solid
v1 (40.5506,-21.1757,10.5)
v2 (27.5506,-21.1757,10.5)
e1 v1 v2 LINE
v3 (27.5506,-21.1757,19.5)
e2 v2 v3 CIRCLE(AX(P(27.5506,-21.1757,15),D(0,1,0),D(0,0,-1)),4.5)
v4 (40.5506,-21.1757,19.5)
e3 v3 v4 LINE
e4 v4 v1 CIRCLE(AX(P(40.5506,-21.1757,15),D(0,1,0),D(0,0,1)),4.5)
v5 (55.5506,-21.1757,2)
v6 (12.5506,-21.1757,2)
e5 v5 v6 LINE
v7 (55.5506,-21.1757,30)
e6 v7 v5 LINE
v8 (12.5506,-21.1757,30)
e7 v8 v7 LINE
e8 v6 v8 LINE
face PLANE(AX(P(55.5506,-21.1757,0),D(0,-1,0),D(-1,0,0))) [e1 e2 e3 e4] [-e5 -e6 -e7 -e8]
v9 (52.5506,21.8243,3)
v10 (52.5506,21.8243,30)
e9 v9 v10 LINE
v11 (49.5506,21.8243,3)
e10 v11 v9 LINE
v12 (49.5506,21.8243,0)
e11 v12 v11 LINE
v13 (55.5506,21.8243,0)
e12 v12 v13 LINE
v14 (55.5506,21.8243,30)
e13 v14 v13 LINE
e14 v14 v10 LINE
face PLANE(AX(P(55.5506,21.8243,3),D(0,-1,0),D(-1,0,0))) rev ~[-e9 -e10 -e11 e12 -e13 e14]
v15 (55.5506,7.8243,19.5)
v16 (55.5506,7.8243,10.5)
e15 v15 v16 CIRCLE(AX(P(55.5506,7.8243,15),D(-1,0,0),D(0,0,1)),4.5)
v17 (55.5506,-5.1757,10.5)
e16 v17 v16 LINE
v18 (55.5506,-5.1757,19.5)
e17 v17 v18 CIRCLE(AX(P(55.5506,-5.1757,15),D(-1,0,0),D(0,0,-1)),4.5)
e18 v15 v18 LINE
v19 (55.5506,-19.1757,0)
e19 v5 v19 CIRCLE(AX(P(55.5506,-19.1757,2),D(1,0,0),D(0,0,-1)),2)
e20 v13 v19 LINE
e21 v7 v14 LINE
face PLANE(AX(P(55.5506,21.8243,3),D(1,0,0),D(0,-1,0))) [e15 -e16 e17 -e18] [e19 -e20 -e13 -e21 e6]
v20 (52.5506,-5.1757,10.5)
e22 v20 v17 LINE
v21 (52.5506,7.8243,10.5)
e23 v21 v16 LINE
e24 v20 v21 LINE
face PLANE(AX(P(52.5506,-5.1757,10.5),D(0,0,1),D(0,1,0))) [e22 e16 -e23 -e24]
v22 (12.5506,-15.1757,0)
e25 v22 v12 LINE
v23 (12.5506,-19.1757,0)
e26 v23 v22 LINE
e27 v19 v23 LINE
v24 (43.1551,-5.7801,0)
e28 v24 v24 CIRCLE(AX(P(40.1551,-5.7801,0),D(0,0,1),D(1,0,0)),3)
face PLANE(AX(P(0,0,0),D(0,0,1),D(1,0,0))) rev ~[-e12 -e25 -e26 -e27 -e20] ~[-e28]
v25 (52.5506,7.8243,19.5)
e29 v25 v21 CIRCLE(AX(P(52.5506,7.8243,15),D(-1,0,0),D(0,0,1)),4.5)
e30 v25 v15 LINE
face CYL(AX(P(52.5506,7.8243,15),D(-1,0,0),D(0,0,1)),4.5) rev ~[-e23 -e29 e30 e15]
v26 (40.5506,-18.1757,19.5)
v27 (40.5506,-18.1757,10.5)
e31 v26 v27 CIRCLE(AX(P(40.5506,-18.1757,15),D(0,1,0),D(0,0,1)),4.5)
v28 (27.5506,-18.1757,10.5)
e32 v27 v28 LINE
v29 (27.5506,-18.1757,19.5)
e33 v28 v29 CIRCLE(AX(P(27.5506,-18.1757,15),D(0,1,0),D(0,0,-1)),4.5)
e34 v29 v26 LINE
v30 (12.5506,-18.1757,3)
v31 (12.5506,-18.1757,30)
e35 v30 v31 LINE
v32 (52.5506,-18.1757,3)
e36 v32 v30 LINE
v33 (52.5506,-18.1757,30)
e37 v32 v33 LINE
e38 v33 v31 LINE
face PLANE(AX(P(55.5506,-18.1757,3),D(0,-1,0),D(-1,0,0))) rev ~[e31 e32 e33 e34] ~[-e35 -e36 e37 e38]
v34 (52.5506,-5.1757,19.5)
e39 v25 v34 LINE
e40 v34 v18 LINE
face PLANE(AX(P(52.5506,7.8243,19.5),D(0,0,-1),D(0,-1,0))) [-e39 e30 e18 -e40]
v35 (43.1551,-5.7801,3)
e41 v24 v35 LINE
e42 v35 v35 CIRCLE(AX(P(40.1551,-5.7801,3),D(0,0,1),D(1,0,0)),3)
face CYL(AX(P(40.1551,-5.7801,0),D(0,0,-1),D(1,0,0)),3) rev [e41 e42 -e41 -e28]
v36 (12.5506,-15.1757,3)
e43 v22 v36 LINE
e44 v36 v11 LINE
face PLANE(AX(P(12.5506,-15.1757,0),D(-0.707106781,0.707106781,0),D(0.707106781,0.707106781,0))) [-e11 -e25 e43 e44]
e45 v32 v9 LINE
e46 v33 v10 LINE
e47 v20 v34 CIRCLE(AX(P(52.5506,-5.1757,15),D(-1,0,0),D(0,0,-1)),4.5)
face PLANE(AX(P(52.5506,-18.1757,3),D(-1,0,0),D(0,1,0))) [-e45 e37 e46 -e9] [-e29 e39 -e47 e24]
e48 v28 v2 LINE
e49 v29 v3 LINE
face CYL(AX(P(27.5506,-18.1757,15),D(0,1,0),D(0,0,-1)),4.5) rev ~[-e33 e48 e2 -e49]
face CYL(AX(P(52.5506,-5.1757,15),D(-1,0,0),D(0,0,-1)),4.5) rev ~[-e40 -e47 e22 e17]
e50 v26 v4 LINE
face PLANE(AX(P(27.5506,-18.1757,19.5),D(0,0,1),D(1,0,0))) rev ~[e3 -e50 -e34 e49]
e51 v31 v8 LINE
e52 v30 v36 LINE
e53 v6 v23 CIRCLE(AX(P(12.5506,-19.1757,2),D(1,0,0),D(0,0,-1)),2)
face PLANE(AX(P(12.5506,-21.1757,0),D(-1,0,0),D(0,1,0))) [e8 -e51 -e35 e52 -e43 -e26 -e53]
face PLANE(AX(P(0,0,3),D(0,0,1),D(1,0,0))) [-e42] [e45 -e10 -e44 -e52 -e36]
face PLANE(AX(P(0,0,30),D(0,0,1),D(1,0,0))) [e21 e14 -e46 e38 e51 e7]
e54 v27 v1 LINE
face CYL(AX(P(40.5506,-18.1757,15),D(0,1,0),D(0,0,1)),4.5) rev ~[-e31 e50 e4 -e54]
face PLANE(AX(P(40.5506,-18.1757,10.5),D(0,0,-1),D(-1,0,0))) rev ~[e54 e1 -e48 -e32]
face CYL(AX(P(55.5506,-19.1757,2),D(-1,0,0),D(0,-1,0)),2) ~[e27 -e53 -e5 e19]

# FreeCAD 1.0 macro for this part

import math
import FreeCAD as App
import Part
import Sketcher
from FreeCAD import Vector
Q = App.Units.Quantity


def edges_at(feature, points):
    """Names of the edges that pass closest to the given points."""
    edges = feature.Shape.Edges
    near = lambda p: min(range(len(edges)), key=lambda i: edges[i].distToShape(Part.Vertex(*p))[0])
    return sorted({f"Edge{near(p) + 1}" for p in points})

doc = App.newDocument("Part")
body = doc.addObject("PartDesign::Body", "Body")

# Sketch on XY plane
sketch1 = doc.addObject("Sketcher::SketchObject", "Sketch")
body.addObject(sketch1)
sketch1.AttachmentSupport = (doc.XY_Plane, [""])
sketch1.MapMode = "FlatFace"
sketch1.addGeometry(Part.LineSegment(Vector(55.6, 21.8, 0), Vector(49.6, 21.8, 0)), False)
sketch1.addGeometry(Part.LineSegment(Vector(49.6, 21.8, 0), Vector(12.6, -15.2, 0)), False)
sketch1.addGeometry(Part.LineSegment(Vector(12.6, -15.2, 0), Vector(12.6, -21.2, 0)), False)
sketch1.addGeometry(Part.LineSegment(Vector(12.6, -21.2, 0), Vector(55.6, -21.2, 0)), False)
sketch1.addGeometry(Part.LineSegment(Vector(55.6, -21.2, 0), Vector(55.6, 21.8, 0)), False)
sketch1.addGeometry(Part.Circle(Vector(40.2, -5.8, 0), Vector(0, 0, 1), 3), False)
sketch1.addConstraint(Sketcher.Constraint("Coincident", 0, 2, 1, 1))
sketch1.addConstraint(Sketcher.Constraint("Coincident", 1, 2, 2, 1))
sketch1.addConstraint(Sketcher.Constraint("Coincident", 2, 2, 3, 1))
sketch1.addConstraint(Sketcher.Constraint("Coincident", 3, 2, 4, 1))
sketch1.addConstraint(Sketcher.Constraint("Coincident", 4, 2, 0, 1))
sketch1.addConstraint(Sketcher.Constraint("Horizontal", 0))
sketch1.addConstraint(Sketcher.Constraint("Vertical", 2))
sketch1.addConstraint(Sketcher.Constraint("Horizontal", 3))
sketch1.addConstraint(Sketcher.Constraint("Vertical", 4))
sketch1.addConstraint(Sketcher.Constraint("Equal", 0, 2))
sketch1.addConstraint(Sketcher.Constraint("Equal", 3, 4))
sketch1.addConstraint(Sketcher.Constraint("Diameter", 5, Q("6 mm")))
sketch1.addConstraint(Sketcher.Constraint("DistanceX", 0, 2, 0, 1, Q("6 mm")))
sketch1.addConstraint(Sketcher.Constraint("DistanceX", 3, 1, 3, 2, Q("43 mm")))
sketch1.addConstraint(Sketcher.Constraint("DistanceY", 5, 3, -1, 1, Q("5.78 mm")))
sketch1.addConstraint(Sketcher.Constraint("DistanceX", -1, 1, 5, 3, Q("40.155 mm")))
sketch1.addConstraint(Sketcher.Constraint("DistanceX", -1, 1, 0, 2, Q("49.5506 mm")))
sketch1.addConstraint(Sketcher.Constraint("DistanceY", -1, 1, 0, 2, Q("21.8243 mm")))
pad1 = doc.addObject("PartDesign::Pad", "Pad")
body.addObject(pad1)
pad1.Profile = sketch1
pad1.Length = 3

# Sketch on XY plane
sketch2 = doc.addObject("Sketcher::SketchObject", "Sketch001")
body.addObject(sketch2)
sketch2.AttachmentSupport = (doc.XY_Plane, [""])
sketch2.MapMode = "FlatFace"
sketch2.AttachmentOffset = App.Placement(Vector(0, 0, 3), App.Rotation())
sketch2.addGeometry(Part.LineSegment(Vector(55.6, -18.2, 0), Vector(12.6, -18.2, 0)), False)
sketch2.addGeometry(Part.LineSegment(Vector(12.6, -18.2, 0), Vector(12.6, -21.2, 0)), False)
sketch2.addGeometry(Part.LineSegment(Vector(12.6, -21.2, 0), Vector(55.6, -21.2, 0)), False)
sketch2.addGeometry(Part.LineSegment(Vector(55.6, -21.2, 0), Vector(55.6, -18.2, 0)), False)
sketch2.addConstraint(Sketcher.Constraint("Coincident", 0, 2, 1, 1))
sketch2.addConstraint(Sketcher.Constraint("Coincident", 1, 2, 2, 1))
sketch2.addConstraint(Sketcher.Constraint("Coincident", 2, 2, 3, 1))
sketch2.addConstraint(Sketcher.Constraint("Coincident", 3, 2, 0, 1))
sketch2.addConstraint(Sketcher.Constraint("Horizontal", 0))
sketch2.addConstraint(Sketcher.Constraint("Vertical", 1))
sketch2.addConstraint(Sketcher.Constraint("Horizontal", 2))
sketch2.addConstraint(Sketcher.Constraint("Vertical", 3))
sketch2.addConstraint(Sketcher.Constraint("DistanceY", 1, 2, 1, 1, Q("3 mm")))
sketch2.addConstraint(Sketcher.Constraint("DistanceX", 0, 2, 0, 1, Q("43 mm")))
sketch2.addConstraint(Sketcher.Constraint("DistanceX", -1, 1, 0, 2, Q("12.5506 mm")))
sketch2.addConstraint(Sketcher.Constraint("DistanceY", 0, 2, -1, 1, Q("18.1757 mm")))
pad2 = doc.addObject("PartDesign::Pad", "Pad001")
body.addObject(pad2)
pad2.Profile = sketch2
pad2.Length = 27

# Sketch on XY plane
sketch3 = doc.addObject("Sketcher::SketchObject", "Sketch002")
body.addObject(sketch3)
sketch3.AttachmentSupport = (doc.XY_Plane, [""])
sketch3.MapMode = "FlatFace"
sketch3.AttachmentOffset = App.Placement(Vector(0, 0, 3), App.Rotation())
sketch3.addGeometry(Part.LineSegment(Vector(52.6, 21.8, 0), Vector(52.6, -18.2, 0)), False)
sketch3.addGeometry(Part.LineSegment(Vector(52.6, -18.2, 0), Vector(55.6, -18.2, 0)), False)
sketch3.addGeometry(Part.LineSegment(Vector(55.6, -18.2, 0), Vector(55.6, 21.8, 0)), False)
sketch3.addGeometry(Part.LineSegment(Vector(55.6, 21.8, 0), Vector(52.6, 21.8, 0)), False)
sketch3.addConstraint(Sketcher.Constraint("Coincident", 0, 2, 1, 1))
sketch3.addConstraint(Sketcher.Constraint("Coincident", 1, 2, 2, 1))
sketch3.addConstraint(Sketcher.Constraint("Coincident", 2, 2, 3, 1))
sketch3.addConstraint(Sketcher.Constraint("Coincident", 3, 2, 0, 1))
sketch3.addConstraint(Sketcher.Constraint("Vertical", 0))
sketch3.addConstraint(Sketcher.Constraint("Horizontal", 1))
sketch3.addConstraint(Sketcher.Constraint("Vertical", 2))
sketch3.addConstraint(Sketcher.Constraint("Horizontal", 3))
sketch3.addConstraint(Sketcher.Constraint("DistanceX", 1, 1, 1, 2, Q("3 mm")))
sketch3.addConstraint(Sketcher.Constraint("DistanceY", 0, 2, 0, 1, Q("40 mm")))
sketch3.addConstraint(Sketcher.Constraint("DistanceX", -1, 1, 0, 2, Q("52.5506 mm")))
sketch3.addConstraint(Sketcher.Constraint("DistanceY", 0, 2, -1, 1, Q("18.1757 mm")))
pad3 = doc.addObject("PartDesign::Pad", "Pad002")
body.addObject(pad3)
pad3.Profile = sketch3
pad3.Length = 27
doc.recompute()

fillet = doc.addObject("PartDesign::Fillet", "Fillet")
body.addObject(fillet)
fillet.Base = (pad3, edges_at(pad3, [(34.051, -21.176, 0)]))
fillet.Radius = 2

# Sketch on YZ plane
sketch4 = doc.addObject("Sketcher::SketchObject", "Sketch003")
body.addObject(sketch4)
sketch4.AttachmentSupport = (doc.YZ_Plane, [""])
sketch4.MapMode = "FlatFace"
sketch4.AttachmentOffset = App.Placement(Vector(0, 0, 52.5506), App.Rotation())
sketch4.addGeometry(Part.LineSegment(Vector(-5.2, 19.5, 0), Vector(7.8, 19.5, 0)), False)
sketch4.addGeometry(Part.ArcOfCircle(Part.Circle(Vector(7.8, 15, 0), Vector(0, 0, 1), 4.5), math.radians(-90), math.radians(90)), False)
sketch4.addGeometry(Part.LineSegment(Vector(7.8, 10.5, 0), Vector(-5.2, 10.5, 0)), False)
sketch4.addGeometry(Part.ArcOfCircle(Part.Circle(Vector(-5.2, 15, 0), Vector(0, 0, 1), 4.5), math.radians(90), math.radians(270)), False)
sketch4.addConstraint(Sketcher.Constraint("Tangent", 0, 2, 1, 2))
sketch4.addConstraint(Sketcher.Constraint("Tangent", 1, 1, 2, 1))
sketch4.addConstraint(Sketcher.Constraint("Tangent", 2, 2, 3, 2))
sketch4.addConstraint(Sketcher.Constraint("Tangent", 3, 1, 0, 1))
sketch4.addConstraint(Sketcher.Constraint("Horizontal", 0))
sketch4.addConstraint(Sketcher.Constraint("Horizontal", 2))
sketch4.addConstraint(Sketcher.Constraint("Radius", 1, Q("4.5 mm")))
sketch4.addConstraint(Sketcher.Constraint("DistanceX", 0, 1, 0, 2, Q("13 mm")))
sketch4.addConstraint(Sketcher.Constraint("DistanceY", -1, 1, 1, 3, Q("15 mm")))
sketch4.addConstraint(Sketcher.Constraint("DistanceX", -1, 1, 1, 3, Q("7.8243 mm")))
pocket1 = doc.addObject("PartDesign::Pocket", "Pocket")
body.addObject(pocket1)
pocket1.Profile = sketch4
pocket1.Length = 3
pocket1.Reversed = True

# Sketch on XZ plane
sketch5 = doc.addObject("Sketcher::SketchObject", "Sketch004")
body.addObject(sketch5)
sketch5.AttachmentSupport = (doc.XZ_Plane, [""])
sketch5.MapMode = "FlatFace"
sketch5.AttachmentOffset = App.Placement(Vector(0, 0, 18.1757), App.Rotation())
sketch5.addGeometry(Part.ArcOfCircle(Part.Circle(Vector(27.6, 15, 0), Vector(0, 0, 1), 4.5), math.radians(90), math.radians(270)), False)
sketch5.addGeometry(Part.LineSegment(Vector(27.6, 19.5, 0), Vector(40.6, 19.5, 0)), False)
sketch5.addGeometry(Part.ArcOfCircle(Part.Circle(Vector(40.6, 15, 0), Vector(0, 0, 1), 4.5), math.radians(-90), math.radians(90)), False)
sketch5.addGeometry(Part.LineSegment(Vector(40.6, 10.5, 0), Vector(27.6, 10.5, 0)), False)
sketch5.addConstraint(Sketcher.Constraint("Tangent", 0, 1, 1, 1))
sketch5.addConstraint(Sketcher.Constraint("Tangent", 1, 2, 2, 2))
sketch5.addConstraint(Sketcher.Constraint("Tangent", 2, 1, 3, 1))
sketch5.addConstraint(Sketcher.Constraint("Tangent", 3, 2, 0, 2))
sketch5.addConstraint(Sketcher.Constraint("Horizontal", 1))
sketch5.addConstraint(Sketcher.Constraint("Horizontal", 3))
sketch5.addConstraint(Sketcher.Constraint("DistanceY", -1, 1, 0, 3, Q("15 mm")))
sketch5.addConstraint(Sketcher.Constraint("DistanceY", -1, 1, 0, 1, Q("19.5 mm")))
sketch5.addConstraint(Sketcher.Constraint("DistanceX", 1, 1, 1, 2, Q("13 mm")))
sketch5.addConstraint(Sketcher.Constraint("DistanceX", -1, 1, 0, 3, Q("27.5506 mm")))
pocket2 = doc.addObject("PartDesign::Pocket", "Pocket001")
body.addObject(pocket2)
pocket2.Profile = sketch5
pocket2.Length = 3
pocket2.Reversed = True

doc.recompute()
